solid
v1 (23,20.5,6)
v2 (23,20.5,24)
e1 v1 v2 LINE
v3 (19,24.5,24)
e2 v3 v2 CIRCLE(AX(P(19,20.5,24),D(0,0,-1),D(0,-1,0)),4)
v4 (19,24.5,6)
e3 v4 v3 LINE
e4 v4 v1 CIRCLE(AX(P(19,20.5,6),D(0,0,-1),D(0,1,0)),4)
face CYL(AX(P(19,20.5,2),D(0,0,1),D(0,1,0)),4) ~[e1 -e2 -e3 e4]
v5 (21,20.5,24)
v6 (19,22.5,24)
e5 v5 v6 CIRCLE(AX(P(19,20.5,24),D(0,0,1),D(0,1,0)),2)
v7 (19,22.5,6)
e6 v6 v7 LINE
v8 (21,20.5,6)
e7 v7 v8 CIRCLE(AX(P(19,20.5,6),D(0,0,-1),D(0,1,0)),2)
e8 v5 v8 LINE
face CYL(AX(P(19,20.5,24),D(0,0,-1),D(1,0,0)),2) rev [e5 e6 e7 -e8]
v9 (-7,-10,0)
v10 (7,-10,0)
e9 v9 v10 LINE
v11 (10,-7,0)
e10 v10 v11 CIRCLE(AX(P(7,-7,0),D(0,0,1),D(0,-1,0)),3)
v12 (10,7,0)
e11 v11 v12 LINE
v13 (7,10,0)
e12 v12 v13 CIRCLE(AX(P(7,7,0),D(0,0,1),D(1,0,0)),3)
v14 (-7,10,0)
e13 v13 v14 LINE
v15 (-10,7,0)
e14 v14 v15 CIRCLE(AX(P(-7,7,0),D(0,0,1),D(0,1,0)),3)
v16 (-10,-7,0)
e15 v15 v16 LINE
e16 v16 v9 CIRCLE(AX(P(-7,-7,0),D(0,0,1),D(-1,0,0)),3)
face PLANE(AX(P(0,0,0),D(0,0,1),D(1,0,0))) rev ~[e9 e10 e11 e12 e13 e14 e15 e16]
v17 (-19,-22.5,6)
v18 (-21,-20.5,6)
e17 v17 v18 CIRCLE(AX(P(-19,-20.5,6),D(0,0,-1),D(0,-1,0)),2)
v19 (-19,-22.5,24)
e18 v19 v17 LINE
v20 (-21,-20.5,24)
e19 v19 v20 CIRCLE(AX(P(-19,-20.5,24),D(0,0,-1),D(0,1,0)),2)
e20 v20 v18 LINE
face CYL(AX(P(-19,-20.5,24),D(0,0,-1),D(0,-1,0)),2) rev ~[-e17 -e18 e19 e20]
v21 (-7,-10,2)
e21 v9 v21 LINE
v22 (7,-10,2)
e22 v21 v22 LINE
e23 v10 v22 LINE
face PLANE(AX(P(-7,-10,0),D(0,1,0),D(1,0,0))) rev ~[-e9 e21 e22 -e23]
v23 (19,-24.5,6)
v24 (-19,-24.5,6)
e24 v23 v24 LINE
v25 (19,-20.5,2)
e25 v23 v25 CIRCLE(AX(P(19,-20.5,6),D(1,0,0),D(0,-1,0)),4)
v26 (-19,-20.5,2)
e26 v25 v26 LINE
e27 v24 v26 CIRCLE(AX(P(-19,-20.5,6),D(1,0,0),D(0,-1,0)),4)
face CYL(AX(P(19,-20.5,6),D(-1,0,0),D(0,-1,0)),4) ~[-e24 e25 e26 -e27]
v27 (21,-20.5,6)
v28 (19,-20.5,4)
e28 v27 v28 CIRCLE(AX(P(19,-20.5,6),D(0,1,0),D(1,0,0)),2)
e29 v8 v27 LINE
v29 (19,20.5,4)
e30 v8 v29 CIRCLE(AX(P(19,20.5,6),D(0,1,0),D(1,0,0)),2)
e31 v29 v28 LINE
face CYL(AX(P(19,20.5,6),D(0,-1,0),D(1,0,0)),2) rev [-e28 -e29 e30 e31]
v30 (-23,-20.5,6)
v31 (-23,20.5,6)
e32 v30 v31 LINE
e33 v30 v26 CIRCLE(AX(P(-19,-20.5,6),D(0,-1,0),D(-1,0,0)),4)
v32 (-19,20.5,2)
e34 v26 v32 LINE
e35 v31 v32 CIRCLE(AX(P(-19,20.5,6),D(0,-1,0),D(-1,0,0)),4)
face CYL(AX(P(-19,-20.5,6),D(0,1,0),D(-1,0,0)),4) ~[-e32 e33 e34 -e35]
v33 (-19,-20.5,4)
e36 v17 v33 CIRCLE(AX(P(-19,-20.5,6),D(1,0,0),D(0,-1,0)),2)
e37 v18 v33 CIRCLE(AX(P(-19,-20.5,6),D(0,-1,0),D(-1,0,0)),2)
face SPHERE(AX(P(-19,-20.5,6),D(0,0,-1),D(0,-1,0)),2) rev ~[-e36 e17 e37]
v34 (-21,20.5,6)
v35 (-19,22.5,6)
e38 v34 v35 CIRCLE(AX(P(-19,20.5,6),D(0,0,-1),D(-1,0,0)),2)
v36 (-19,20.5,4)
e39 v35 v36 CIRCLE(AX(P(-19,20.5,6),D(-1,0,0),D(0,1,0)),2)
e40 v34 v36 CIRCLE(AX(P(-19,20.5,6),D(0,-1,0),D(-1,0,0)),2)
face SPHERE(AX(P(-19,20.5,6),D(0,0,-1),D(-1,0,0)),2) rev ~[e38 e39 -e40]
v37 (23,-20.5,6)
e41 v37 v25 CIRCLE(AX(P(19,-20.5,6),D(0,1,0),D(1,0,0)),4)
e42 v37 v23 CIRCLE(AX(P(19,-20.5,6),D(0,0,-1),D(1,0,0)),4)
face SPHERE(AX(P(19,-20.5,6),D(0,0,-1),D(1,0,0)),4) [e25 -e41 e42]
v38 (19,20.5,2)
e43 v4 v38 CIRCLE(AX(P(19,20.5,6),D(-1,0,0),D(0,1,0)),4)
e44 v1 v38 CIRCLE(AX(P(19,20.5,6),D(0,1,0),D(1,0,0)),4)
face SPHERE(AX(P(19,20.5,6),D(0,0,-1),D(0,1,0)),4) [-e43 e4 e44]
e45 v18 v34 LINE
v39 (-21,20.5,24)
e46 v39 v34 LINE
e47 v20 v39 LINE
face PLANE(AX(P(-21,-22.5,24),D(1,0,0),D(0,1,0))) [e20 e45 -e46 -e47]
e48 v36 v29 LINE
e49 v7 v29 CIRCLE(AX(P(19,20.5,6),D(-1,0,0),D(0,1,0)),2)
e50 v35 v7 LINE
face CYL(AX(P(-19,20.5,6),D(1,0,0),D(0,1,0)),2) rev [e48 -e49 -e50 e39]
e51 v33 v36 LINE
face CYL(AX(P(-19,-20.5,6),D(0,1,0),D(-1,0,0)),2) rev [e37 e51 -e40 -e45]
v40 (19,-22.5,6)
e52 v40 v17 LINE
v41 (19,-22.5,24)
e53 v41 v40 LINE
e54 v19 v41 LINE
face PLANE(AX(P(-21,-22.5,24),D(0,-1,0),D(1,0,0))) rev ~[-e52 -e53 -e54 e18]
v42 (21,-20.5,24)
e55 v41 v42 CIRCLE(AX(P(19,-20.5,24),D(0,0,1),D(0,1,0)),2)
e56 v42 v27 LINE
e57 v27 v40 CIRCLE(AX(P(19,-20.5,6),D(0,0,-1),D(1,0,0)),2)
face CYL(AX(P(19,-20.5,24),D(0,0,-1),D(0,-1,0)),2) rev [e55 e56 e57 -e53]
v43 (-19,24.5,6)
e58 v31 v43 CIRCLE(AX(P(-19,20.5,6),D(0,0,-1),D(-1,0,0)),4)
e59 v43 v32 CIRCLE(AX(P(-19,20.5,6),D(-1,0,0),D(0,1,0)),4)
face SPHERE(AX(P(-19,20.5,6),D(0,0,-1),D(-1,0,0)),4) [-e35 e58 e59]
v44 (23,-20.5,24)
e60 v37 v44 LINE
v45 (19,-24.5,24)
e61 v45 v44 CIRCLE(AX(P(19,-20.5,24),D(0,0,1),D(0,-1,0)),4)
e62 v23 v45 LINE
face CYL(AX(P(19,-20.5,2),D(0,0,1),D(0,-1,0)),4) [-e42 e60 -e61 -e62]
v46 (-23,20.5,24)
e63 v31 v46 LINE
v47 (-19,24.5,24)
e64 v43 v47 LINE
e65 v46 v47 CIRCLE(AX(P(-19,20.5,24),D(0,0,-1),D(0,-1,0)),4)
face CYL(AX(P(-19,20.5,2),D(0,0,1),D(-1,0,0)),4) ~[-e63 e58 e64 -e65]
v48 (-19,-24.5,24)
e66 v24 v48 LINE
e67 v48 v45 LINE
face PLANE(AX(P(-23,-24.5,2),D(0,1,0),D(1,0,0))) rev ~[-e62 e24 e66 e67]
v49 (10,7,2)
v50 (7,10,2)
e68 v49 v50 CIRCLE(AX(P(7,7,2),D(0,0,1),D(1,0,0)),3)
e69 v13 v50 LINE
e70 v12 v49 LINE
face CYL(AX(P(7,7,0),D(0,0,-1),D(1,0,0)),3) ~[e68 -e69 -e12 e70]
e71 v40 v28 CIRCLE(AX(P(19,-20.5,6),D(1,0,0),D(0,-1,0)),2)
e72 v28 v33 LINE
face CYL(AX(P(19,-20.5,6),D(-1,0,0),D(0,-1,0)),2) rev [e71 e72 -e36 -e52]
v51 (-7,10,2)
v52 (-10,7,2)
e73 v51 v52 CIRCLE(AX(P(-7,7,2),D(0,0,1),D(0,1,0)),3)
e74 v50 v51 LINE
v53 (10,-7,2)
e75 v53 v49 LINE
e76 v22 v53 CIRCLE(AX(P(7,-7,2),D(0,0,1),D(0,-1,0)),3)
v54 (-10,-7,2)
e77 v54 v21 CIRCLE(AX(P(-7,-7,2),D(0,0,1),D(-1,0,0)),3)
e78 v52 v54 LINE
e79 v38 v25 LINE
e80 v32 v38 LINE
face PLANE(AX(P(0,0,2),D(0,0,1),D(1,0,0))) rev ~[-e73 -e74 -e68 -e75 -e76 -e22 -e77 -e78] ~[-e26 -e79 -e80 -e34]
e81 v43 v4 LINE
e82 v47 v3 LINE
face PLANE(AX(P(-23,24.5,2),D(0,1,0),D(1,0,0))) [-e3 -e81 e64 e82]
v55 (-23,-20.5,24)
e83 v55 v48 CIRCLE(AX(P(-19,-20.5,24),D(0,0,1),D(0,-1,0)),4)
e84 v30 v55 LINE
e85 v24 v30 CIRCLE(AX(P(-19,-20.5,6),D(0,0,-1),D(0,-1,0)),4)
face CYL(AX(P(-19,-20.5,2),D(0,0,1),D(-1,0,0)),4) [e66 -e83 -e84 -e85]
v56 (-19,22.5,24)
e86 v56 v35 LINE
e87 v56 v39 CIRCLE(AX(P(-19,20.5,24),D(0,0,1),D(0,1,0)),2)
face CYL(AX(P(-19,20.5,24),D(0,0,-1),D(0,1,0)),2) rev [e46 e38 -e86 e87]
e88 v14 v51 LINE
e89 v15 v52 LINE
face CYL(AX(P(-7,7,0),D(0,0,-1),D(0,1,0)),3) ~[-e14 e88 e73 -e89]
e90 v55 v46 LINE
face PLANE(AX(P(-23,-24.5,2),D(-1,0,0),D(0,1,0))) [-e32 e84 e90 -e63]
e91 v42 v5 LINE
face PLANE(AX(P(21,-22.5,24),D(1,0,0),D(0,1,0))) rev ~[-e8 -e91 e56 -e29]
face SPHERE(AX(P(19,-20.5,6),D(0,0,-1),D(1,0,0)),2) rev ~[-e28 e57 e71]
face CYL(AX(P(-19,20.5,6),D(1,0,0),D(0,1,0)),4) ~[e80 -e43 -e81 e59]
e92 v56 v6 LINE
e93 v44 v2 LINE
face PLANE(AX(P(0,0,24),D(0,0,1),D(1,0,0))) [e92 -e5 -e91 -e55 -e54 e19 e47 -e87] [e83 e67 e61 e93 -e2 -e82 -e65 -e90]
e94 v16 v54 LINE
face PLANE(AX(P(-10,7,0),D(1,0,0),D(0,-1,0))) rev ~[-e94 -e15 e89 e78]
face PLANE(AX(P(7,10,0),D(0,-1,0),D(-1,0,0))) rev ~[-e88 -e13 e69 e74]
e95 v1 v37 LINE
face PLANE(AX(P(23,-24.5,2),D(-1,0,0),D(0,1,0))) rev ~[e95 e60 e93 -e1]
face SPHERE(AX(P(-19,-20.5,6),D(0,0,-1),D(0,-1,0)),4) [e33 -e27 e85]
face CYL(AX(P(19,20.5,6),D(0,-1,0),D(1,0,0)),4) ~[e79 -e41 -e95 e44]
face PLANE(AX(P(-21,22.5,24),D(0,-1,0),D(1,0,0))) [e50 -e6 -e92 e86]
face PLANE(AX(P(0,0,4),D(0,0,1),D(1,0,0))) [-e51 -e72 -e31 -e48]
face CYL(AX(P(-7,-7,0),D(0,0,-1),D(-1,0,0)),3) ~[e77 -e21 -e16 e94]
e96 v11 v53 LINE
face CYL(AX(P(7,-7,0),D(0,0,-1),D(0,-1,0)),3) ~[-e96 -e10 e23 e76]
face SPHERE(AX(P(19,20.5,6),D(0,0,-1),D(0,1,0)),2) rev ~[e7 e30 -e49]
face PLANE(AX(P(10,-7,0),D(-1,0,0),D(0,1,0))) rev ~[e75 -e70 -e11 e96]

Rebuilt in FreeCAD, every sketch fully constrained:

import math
import FreeCAD as App
import Part
import Sketcher


def edges_at(feature, points):
    """Names of the edges that pass closest to the given points."""
    edges = feature.Shape.Edges
    near = lambda p: min(range(len(edges)), key=lambda i: edges[i].distToShape(Part.Vertex(*p))[0])
    return sorted({f"Edge{near(p) + 1}" for p in points})


def add_polygon(sketch, points):
    """Adds a closed chain of lines whose ends are joined by coincident constraints."""
    first, n = sketch.GeometryCount, len(points)
    for a, b in zip(points, points[1:] + points[:1]):
        sketch.addGeometry(Part.LineSegment(App.Vector(*a, 0), App.Vector(*b, 0)), False)
    for i in range(n):
        sketch.addConstraint(Sketcher.Constraint("Coincident", first + i, 2, first + (i + 1) % n, 1))

doc = App.newDocument("Part")
body = doc.addObject("PartDesign::Body", "Body")

sketch1 = body.newObject("Sketcher::SketchObject", "Sketch")
sketch1.AttachmentSupport = (doc.getObject("XY_Plane"), [""])
sketch1.MapMode = "FlatFace"
sketch1.addGeometry([
    Part.LineSegment(App.Vector(7, 10, 0), App.Vector(-7, 10, 0)),
    Part.ArcOfCircle(Part.Circle(App.Vector(-7, 7, 0), App.Vector(0, 0, 1), 3), math.radians(90), math.radians(180)),
    Part.LineSegment(App.Vector(-10, 7, 0), App.Vector(-10, -7, 0)),
    Part.ArcOfCircle(Part.Circle(App.Vector(-7, -7, 0), App.Vector(0, 0, 1), 3), math.radians(180), math.radians(270)),
    Part.LineSegment(App.Vector(-7, -10, 0), App.Vector(7, -10, 0)),
    Part.ArcOfCircle(Part.Circle(App.Vector(7, -7, 0), App.Vector(0, 0, 1), 3), math.radians(-90), math.radians(0)),
    Part.LineSegment(App.Vector(10, -7, 0), App.Vector(10, 7, 0)),
    Part.ArcOfCircle(Part.Circle(App.Vector(7, 7, 0), App.Vector(0, 0, 1), 3), math.radians(0), math.radians(90)),
], False)
sketch1.addConstraint([
    Sketcher.Constraint("Tangent", 0, 2, 1, 1),
    Sketcher.Constraint("Tangent", 1, 2, 2, 1),
    Sketcher.Constraint("Tangent", 2, 2, 3, 1),
    Sketcher.Constraint("Tangent", 3, 2, 4, 1),
    Sketcher.Constraint("Tangent", 4, 2, 5, 1),
    Sketcher.Constraint("Tangent", 5, 2, 6, 1),
    Sketcher.Constraint("Tangent", 6, 2, 7, 1),
    Sketcher.Constraint("Tangent", 7, 2, 0, 1),
    Sketcher.Constraint("Horizontal", 0),
    Sketcher.Constraint("Vertical", 2),
    Sketcher.Constraint("Horizontal", 4),
    Sketcher.Constraint("Vertical", 6),
    Sketcher.Constraint("Equal", 1, 3),
    Sketcher.Constraint("Equal", 3, 5),
    Sketcher.Constraint("Equal", 5, 7),
    Sketcher.Constraint("Symmetric", 1, 3, 5, 3, -1, 1),
    Sketcher.Constraint("Equal", 4, 2),
    Sketcher.Constraint("Radius", 1, 3.0),
    Sketcher.Constraint("DistanceX", 0, 2, 0, 1, 14.0),
])
pad1 = body.newObject("PartDesign::Pad", "Pad")
pad1.Profile = sketch1
pad1.Length = 2

sketch2 = body.newObject("Sketcher::SketchObject", "Sketch001")
sketch2.AttachmentSupport = (doc.getObject("XY_Plane"), [""])
sketch2.MapMode = "FlatFace"
sketch2.AttachmentOffset = App.Placement(App.Vector(0, 0, 2), App.Rotation())
add_polygon(sketch2, [(-23, 24.5), (-23, -24.5), (23, -24.5), (23, 24.5)])
sketch2.addConstraint([
    Sketcher.Constraint("Vertical", 0),
    Sketcher.Constraint("Horizontal", 1),
    Sketcher.Constraint("Vertical", 2),
    Sketcher.Constraint("Horizontal", 3),
    Sketcher.Constraint("Symmetric", 0, 2, 2, 2, -1, 1),
    Sketcher.Constraint("DistanceX", 1, 1, 1, 2, 46.0),
    Sketcher.Constraint("DistanceY", 0, 2, 0, 1, 49.0),
])
pad2 = body.newObject("PartDesign::Pad", "Pad001")
pad2.Profile = sketch2
pad2.Length = 22

sketch3 = body.newObject("Sketcher::SketchObject", "Sketch002")
sketch3.AttachmentSupport = (doc.getObject("XY_Plane"), [""])
sketch3.MapMode = "FlatFace"
sketch3.AttachmentOffset = App.Placement(App.Vector(0, 0, 24), App.Rotation())
add_polygon(sketch3, [(-21, 22.5), (-21, -22.5), (21, -22.5), (21, 22.5)])
sketch3.addConstraint([
    Sketcher.Constraint("Vertical", 0),
    Sketcher.Constraint("Horizontal", 1),
    Sketcher.Constraint("Vertical", 2),
    Sketcher.Constraint("Horizontal", 3),
    Sketcher.Constraint("Symmetric", 0, 2, 2, 2, -1, 1),
    Sketcher.Constraint("DistanceX", 1, 1, 1, 2, 42.0),
    Sketcher.Constraint("DistanceY", 0, 2, 0, 1, 45.0),
])
pocket1 = body.newObject("PartDesign::Pocket", "Pocket")
pocket1.Profile = sketch3
pocket1.Length = 20
doc.recompute()

fillet = body.newObject("PartDesign::Fillet", "Fillet")
fillet.Base = (pocket1, edges_at(pocket1, [
    (-23, 24.5, 13),
    (23, 24.5, 13),
    (23, -24.5, 13),
    (-23, -24.5, 13),
]))
fillet.Radius = 4
doc.recompute()

fillet2 = body.newObject("PartDesign::Fillet", "Fillet001")
fillet2.Base = (fillet, edges_at(fillet, [
    (21, 22.5, 14),
    (21, -22.5, 14),
    (-21, -22.5, 14),
    (-21, 22.5, 14),
]))
fillet2.Radius = 2
doc.recompute()

fillet3 = body.newObject("PartDesign::Fillet", "Fillet002")
fillet3.Base = (fillet2, edges_at(fillet2, [
    (0, 22.5, 4),
    (20.414, 21.914, 4),
    (-20.414, 21.914, 4),
    (21, 0, 4),
    (-21, 0, 4),
    (20.414, -21.914, 4),
    (-20.414, -21.914, 4),
    (0, -22.5, 4),
]))
fillet3.Radius = 2
doc.recompute()

fillet4 = body.newObject("PartDesign::Fillet", "Fillet003")
fillet4.Base = (fillet3, edges_at(fillet3, [
    (0, 24.5, 2),
    (-21.828, 23.328, 2),
    (-23, 0, 2),
    (-21.828, -23.328, 2),
    (0, -24.5, 2),
    (21.828, -23.328, 2),
    (23, 0, 2),
    (21.828, 23.328, 2),
]))
fillet4.Radius = 4

doc.recompute()
